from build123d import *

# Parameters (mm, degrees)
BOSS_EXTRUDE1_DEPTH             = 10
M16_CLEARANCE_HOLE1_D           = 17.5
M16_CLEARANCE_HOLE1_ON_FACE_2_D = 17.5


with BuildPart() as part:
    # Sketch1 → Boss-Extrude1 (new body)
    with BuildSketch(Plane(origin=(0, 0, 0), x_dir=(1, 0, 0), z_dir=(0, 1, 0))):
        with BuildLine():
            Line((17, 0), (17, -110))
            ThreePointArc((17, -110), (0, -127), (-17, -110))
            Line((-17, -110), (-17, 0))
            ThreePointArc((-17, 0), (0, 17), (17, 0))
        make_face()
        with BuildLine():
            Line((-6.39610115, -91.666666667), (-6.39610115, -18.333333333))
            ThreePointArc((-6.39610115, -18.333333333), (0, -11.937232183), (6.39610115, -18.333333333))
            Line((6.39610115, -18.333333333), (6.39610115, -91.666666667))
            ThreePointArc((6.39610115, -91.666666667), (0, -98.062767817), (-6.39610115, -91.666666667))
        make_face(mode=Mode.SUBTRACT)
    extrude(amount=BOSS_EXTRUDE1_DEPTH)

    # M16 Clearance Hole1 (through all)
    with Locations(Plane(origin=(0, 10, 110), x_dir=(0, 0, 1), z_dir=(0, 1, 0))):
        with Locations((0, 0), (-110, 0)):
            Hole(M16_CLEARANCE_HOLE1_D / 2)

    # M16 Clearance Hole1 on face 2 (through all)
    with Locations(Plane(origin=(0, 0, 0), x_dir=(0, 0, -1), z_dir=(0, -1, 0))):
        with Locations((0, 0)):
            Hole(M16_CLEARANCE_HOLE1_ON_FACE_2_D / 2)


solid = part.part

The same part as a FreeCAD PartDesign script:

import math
import FreeCAD as App
import Part
import Sketcher
from FreeCAD import Vector

doc = App.newDocument("Part")
body = doc.addObject("PartDesign::Body", "Body")

# Sketch on XZ plane
sketch1 = body.newObject("Sketcher::SketchObject", "Sketch")
sketch1.AttachmentSupport = (doc.getObject("XZ_Plane"), [""])
sketch1.MapMode = "FlatFace"
sketch1.addGeometry([
    Part.LineSegment(Vector(17, 110, 0), Vector(17, 0, 0)),  # 0
    Part.ArcOfCircle(Part.Circle(Vector(0, 0, 0), Vector(0, 0, 1), 17), math.radians(180), math.radians(360)),  # 1
    Part.LineSegment(Vector(-17, 0, 0), Vector(-17, 110, 0)),  # 2
    Part.ArcOfCircle(Part.Circle(Vector(0, 110, 0), Vector(0, 0, 1), 17), math.radians(0), math.radians(180)),  # 3
    Part.LineSegment(Vector(-6, 92, 0), Vector(-6, 18, 0)),  # 4
    Part.ArcOfCircle(Part.Circle(Vector(0, 18, 0), Vector(0, 0, 1), 6), math.radians(180), math.radians(360)),  # 5
    Part.LineSegment(Vector(6, 18, 0), Vector(6, 92, 0)),  # 6
    Part.ArcOfCircle(Part.Circle(Vector(0, 92, 0), Vector(0, 0, 1), 6), math.radians(0), math.radians(180)),  # 7
], False)
sketch1.addConstraint([
    Sketcher.Constraint("Tangent", 0, 2, 1, 2),
    Sketcher.Constraint("Tangent", 1, 1, 2, 1),
    Sketcher.Constraint("Tangent", 2, 2, 3, 2),
    Sketcher.Constraint("Tangent", 3, 1, 0, 1),
    Sketcher.Constraint("Tangent", 4, 2, 5, 1),
    Sketcher.Constraint("Tangent", 5, 2, 6, 1),
    Sketcher.Constraint("Tangent", 6, 2, 7, 1),
    Sketcher.Constraint("Tangent", 7, 2, 4, 1),
    Sketcher.Constraint("Vertical", 0),
    Sketcher.Constraint("Vertical", 2),
    Sketcher.Constraint("Vertical", 4),
    Sketcher.Constraint("Vertical", 6),
    Sketcher.Constraint("Coincident", 1, 3, -1, 1),
    Sketcher.Constraint("PointOnObject", 5, 3, -2),
    Sketcher.Constraint("Radius", 1, 17.0),
    Sketcher.Constraint("DistanceY", 0, 2, 0, 1, 110.0),
    Sketcher.Constraint("Radius", 5, 6.396101),
    Sketcher.Constraint("DistanceY", 4, 2, 4, 1, 73.333333),
    Sketcher.Constraint("DistanceY", -1, 1, 5, 3, 18.333333),
])
pad1 = body.newObject("PartDesign::Pad", "Pad")
pad1.Profile = sketch1
pad1.Length = 10
pad1.Reversed = True

# Sketch on XZ plane
sketch2 = body.newObject("Sketcher::SketchObject", "Sketch001")
sketch2.AttachmentSupport = (doc.getObject("XZ_Plane"), [""])
sketch2.MapMode = "FlatFace"
sketch2.AttachmentOffset = App.Placement(Vector(0, 0, -10), App.Rotation())
sketch2.addGeometry([
    Part.Circle(Vector(0, 110, 0), Vector(0, 0, 1), 9),
    Part.Circle(Vector(0, 0, 0), Vector(0, 0, 1), 9),
], False)
sketch2.addConstraint([
    Sketcher.Constraint("Coincident", 1, 3, -1, 1),
    Sketcher.Constraint("Equal", 0, 1),
    Sketcher.Constraint("PointOnObject", 0, 3, -2),
    Sketcher.Constraint("Diameter", 0, 17.5),
    Sketcher.Constraint("DistanceY", -1, 1, 0, 3, 110.0),
])
doc.recompute()
hole = body.newObject("PartDesign::Hole", "Hole")
hole.Profile = sketch2
hole.ThreadType = "None"
hole.Diameter = 17.5
hole.DepthType = "ThroughAll"
hole.Reversed = True

# Sketch on XZ plane
sketch3 = body.newObject("Sketcher::SketchObject", "Sketch002")
sketch3.AttachmentSupport = (doc.getObject("XZ_Plane"), [""])
sketch3.MapMode = "FlatFace"
sketch3.addGeometry(Part.Circle(Vector(0, 0, 0), Vector(0, 0, 1), 9), False)
sketch3.addConstraint([
    Sketcher.Constraint("Coincident", 0, 3, -1, 1),
    Sketcher.Constraint("Diameter", 0, 17.5),
])
doc.recompute()
hole2 = body.newObject("PartDesign::Hole", "Hole001")
hole2.Profile = sketch3
hole2.ThreadType = "None"
hole2.Diameter = 17.5
hole2.DepthType = "ThroughAll"

doc.recompute()
